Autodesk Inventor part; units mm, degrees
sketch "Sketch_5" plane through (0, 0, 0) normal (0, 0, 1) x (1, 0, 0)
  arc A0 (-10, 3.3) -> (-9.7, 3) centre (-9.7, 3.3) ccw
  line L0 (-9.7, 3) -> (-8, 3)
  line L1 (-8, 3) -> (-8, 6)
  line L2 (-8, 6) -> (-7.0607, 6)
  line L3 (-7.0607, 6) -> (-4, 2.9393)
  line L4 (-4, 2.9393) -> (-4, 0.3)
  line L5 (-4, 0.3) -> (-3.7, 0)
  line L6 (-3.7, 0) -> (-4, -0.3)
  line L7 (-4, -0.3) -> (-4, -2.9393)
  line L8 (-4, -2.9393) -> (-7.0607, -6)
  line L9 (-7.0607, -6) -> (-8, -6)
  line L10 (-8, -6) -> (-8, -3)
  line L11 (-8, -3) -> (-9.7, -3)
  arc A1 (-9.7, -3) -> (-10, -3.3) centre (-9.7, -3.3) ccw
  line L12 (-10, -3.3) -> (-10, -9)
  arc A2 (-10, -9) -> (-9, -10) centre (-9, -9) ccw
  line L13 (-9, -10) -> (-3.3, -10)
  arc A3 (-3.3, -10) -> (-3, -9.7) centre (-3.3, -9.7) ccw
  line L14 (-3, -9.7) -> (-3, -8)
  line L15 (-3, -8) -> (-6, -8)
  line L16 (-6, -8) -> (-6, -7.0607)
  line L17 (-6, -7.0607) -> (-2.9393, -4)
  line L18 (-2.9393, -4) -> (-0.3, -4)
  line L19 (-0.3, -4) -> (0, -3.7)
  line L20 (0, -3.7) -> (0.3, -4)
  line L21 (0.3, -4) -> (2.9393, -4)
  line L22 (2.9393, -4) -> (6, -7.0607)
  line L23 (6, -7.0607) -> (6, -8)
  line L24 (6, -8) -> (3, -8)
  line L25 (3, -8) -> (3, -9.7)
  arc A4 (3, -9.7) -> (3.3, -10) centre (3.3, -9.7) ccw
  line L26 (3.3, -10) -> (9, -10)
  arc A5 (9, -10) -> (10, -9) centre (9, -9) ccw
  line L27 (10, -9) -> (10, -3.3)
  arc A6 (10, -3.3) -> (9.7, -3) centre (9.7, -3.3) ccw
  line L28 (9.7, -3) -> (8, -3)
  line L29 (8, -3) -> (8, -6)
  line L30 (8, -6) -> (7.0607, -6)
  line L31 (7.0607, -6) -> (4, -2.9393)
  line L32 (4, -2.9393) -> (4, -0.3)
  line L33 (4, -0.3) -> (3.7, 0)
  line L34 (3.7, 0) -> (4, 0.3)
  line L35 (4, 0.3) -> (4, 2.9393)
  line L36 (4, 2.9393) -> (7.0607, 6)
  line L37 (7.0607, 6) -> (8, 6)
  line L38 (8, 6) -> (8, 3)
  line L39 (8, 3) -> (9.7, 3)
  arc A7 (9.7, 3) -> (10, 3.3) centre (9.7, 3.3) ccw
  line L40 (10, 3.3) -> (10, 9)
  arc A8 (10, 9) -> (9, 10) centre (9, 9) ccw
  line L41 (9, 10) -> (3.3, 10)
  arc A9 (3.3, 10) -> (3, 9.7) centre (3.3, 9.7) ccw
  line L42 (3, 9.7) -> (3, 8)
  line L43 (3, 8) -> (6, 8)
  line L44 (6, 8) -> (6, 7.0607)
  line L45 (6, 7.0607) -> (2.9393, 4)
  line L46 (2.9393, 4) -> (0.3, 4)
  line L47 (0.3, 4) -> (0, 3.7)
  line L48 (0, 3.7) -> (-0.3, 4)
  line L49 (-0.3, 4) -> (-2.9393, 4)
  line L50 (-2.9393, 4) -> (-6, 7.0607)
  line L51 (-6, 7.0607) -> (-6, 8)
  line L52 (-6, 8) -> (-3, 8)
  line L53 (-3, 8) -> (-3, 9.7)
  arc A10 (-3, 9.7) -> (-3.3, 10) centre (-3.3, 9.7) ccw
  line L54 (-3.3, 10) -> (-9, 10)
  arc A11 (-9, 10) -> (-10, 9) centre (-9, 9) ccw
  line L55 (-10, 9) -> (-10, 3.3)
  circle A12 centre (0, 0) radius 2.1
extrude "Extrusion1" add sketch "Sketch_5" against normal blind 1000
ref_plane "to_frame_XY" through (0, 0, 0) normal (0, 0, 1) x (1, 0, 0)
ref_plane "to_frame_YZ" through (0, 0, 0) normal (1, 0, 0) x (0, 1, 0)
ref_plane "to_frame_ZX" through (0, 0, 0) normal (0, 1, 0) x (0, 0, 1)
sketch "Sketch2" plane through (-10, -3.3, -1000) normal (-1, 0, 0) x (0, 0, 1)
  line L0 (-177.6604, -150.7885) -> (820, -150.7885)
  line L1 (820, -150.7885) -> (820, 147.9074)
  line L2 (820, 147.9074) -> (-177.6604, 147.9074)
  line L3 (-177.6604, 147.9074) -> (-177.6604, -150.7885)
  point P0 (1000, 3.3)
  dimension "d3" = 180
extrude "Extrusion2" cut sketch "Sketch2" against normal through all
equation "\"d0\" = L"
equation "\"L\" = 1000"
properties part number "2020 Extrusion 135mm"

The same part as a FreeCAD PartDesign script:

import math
import FreeCAD as App
import Part
import Sketcher

V = App.Vector

doc = App.newDocument("Part")
body = doc.addObject("PartDesign::Body", "Body")

sketch1 = body.newObject("Sketcher::SketchObject", "Sketch")
sketch1.AttachmentSupport = (doc.getObject("XY_Plane"), [""])
sketch1.MapMode = "FlatFace"
sketch1.addGeometry(Part.LineSegment(V(-10, 9, 0), V(-10, 3.3, 0)), False)
sketch1.addGeometry(Part.ArcOfCircle(Part.Circle(V(-9.7, 3.3, 0), V(0, 0, 1), 0.3), math.radians(180), math.radians(270)), False)
sketch1.addGeometry(Part.LineSegment(V(-9.7, 3, 0), V(-8, 3, 0)), False)
sketch1.addGeometry(Part.LineSegment(V(-8, 3, 0), V(-8, 6, 0)), False)
sketch1.addGeometry(Part.LineSegment(V(-8, 6, 0), V(-7.0607, 6, 0)), False)
sketch1.addGeometry(Part.LineSegment(V(-7.0607, 6, 0), V(-4, 2.9393, 0)), False)
sketch1.addGeometry(Part.LineSegment(V(-4, 2.9393, 0), V(-4, 0.3, 0)), False)
sketch1.addGeometry(Part.LineSegment(V(-4, 0.3, 0), V(-3.7, 0, 0)), False)
sketch1.addGeometry(Part.LineSegment(V(-3.7, 0, 0), V(-4, -0.3, 0)), False)
sketch1.addGeometry(Part.LineSegment(V(-4, -0.3, 0), V(-4, -2.9393, 0)), False)
sketch1.addGeometry(Part.LineSegment(V(-4, -2.9393, 0), V(-7.0607, -6, 0)), False)
sketch1.addGeometry(Part.LineSegment(V(-7.0607, -6, 0), V(-8, -6, 0)), False)
sketch1.addGeometry(Part.LineSegment(V(-8, -6, 0), V(-8, -3, 0)), False)
sketch1.addGeometry(Part.LineSegment(V(-8, -3, 0), V(-9.7, -3, 0)), False)
sketch1.addGeometry(Part.ArcOfCircle(Part.Circle(V(-9.7, -3.3, 0), V(0, 0, 1), 0.3), math.radians(90), math.radians(180)), False)
sketch1.addGeometry(Part.LineSegment(V(-10, -3.3, 0), V(-10, -9, 0)), False)
sketch1.addGeometry(Part.ArcOfCircle(Part.Circle(V(-9, -9, 0), V(0, 0, 1), 1), math.radians(180), math.radians(270)), False)
sketch1.addGeometry(Part.LineSegment(V(-9, -10, 0), V(-3.3, -10, 0)), False)
sketch1.addGeometry(Part.ArcOfCircle(Part.Circle(V(-3.3, -9.7, 0), V(0, 0, 1), 0.3), math.radians(-90), math.radians(0)), False)
sketch1.addGeometry(Part.LineSegment(V(-3, -9.7, 0), V(-3, -8, 0)), False)
sketch1.addGeometry(Part.LineSegment(V(-3, -8, 0), V(-6, -8, 0)), False)
sketch1.addGeometry(Part.LineSegment(V(-6, -8, 0), V(-6, -7.0607, 0)), False)
sketch1.addGeometry(Part.LineSegment(V(-6, -7.0607, 0), V(-2.9393, -4, 0)), False)
sketch1.addGeometry(Part.LineSegment(V(-2.9393, -4, 0), V(-0.3, -4, 0)), False)
sketch1.addGeometry(Part.LineSegment(V(-0.3, -4, 0), V(0, -3.7, 0)), False)
sketch1.addGeometry(Part.LineSegment(V(0, -3.7, 0), V(0.3, -4, 0)), False)
sketch1.addGeometry(Part.LineSegment(V(0.3, -4, 0), V(2.9393, -4, 0)), False)
sketch1.addGeometry(Part.LineSegment(V(2.9393, -4, 0), V(6, -7.0607, 0)), False)
sketch1.addGeometry(Part.LineSegment(V(6, -7.0607, 0), V(6, -8, 0)), False)
sketch1.addGeometry(Part.LineSegment(V(6, -8, 0), V(3, -8, 0)), False)
sketch1.addGeometry(Part.LineSegment(V(3, -8, 0), V(3, -9.7, 0)), False)
sketch1.addGeometry(Part.ArcOfCircle(Part.Circle(V(3.3, -9.7, 0), V(0, 0, 1), 0.3), math.radians(180), math.radians(270)), False)
sketch1.addGeometry(Part.LineSegment(V(3.3, -10, 0), V(9, -10, 0)), False)
sketch1.addGeometry(Part.ArcOfCircle(Part.Circle(V(9, -9, 0), V(0, 0, 1), 1), math.radians(-90), math.radians(0)), False)
sketch1.addGeometry(Part.LineSegment(V(10, -9, 0), V(10, -3.3, 0)), False)
sketch1.addGeometry(Part.ArcOfCircle(Part.Circle(V(9.7, -3.3, 0), V(0, 0, 1), 0.3), math.radians(0), math.radians(90)), False)
sketch1.addGeometry(Part.LineSegment(V(9.7, -3, 0), V(8, -3, 0)), False)
sketch1.addGeometry(Part.LineSegment(V(8, -3, 0), V(8, -6, 0)), False)
sketch1.addGeometry(Part.LineSegment(V(8, -6, 0), V(7.0607, -6, 0)), False)
sketch1.addGeometry(Part.LineSegment(V(7.0607, -6, 0), V(4, -2.9393, 0)), False)
sketch1.addGeometry(Part.LineSegment(V(4, -2.9393, 0), V(4, -0.3, 0)), False)
sketch1.addGeometry(Part.LineSegment(V(4, -0.3, 0), V(3.7, 0, 0)), False)
sketch1.addGeometry(Part.LineSegment(V(3.7, 0, 0), V(4, 0.3, 0)), False)
sketch1.addGeometry(Part.LineSegment(V(4, 0.3, 0), V(4, 2.9393, 0)), False)
sketch1.addGeometry(Part.LineSegment(V(4, 2.9393, 0), V(7.0607, 6, 0)), False)
sketch1.addGeometry(Part.LineSegment(V(7.0607, 6, 0), V(8, 6, 0)), False)
sketch1.addGeometry(Part.LineSegment(V(8, 6, 0), V(8, 3, 0)), False)
sketch1.addGeometry(Part.LineSegment(V(8, 3, 0), V(9.7, 3, 0)), False)
sketch1.addGeometry(Part.ArcOfCircle(Part.Circle(V(9.7, 3.3, 0), V(0, 0, 1), 0.3), math.radians(-90), math.radians(0)), False)
sketch1.addGeometry(Part.LineSegment(V(10, 3.3, 0), V(10, 9, 0)), False)
sketch1.addGeometry(Part.ArcOfCircle(Part.Circle(V(9, 9, 0), V(0, 0, 1), 1), math.radians(0), math.radians(90)), False)
sketch1.addGeometry(Part.LineSegment(V(9, 10, 0), V(3.3, 10, 0)), False)
sketch1.addGeometry(Part.ArcOfCircle(Part.Circle(V(3.3, 9.7, 0), V(0, 0, 1), 0.3), math.radians(90), math.radians(180)), False)
sketch1.addGeometry(Part.LineSegment(V(3, 9.7, 0), V(3, 8, 0)), False)
sketch1.addGeometry(Part.LineSegment(V(3, 8, 0), V(6, 8, 0)), False)
sketch1.addGeometry(Part.LineSegment(V(6, 8, 0), V(6, 7.0607, 0)), False)
sketch1.addGeometry(Part.LineSegment(V(6, 7.0607, 0), V(2.9393, 4, 0)), False)
sketch1.addGeometry(Part.LineSegment(V(2.9393, 4, 0), V(0.3, 4, 0)), False)
sketch1.addGeometry(Part.LineSegment(V(0.3, 4, 0), V(0, 3.7, 0)), False)
sketch1.addGeometry(Part.LineSegment(V(0, 3.7, 0), V(-0.3, 4, 0)), False)
sketch1.addGeometry(Part.LineSegment(V(-0.3, 4, 0), V(-2.9393, 4, 0)), False)
sketch1.addGeometry(Part.LineSegment(V(-2.9393, 4, 0), V(-6, 7.0607, 0)), False)
sketch1.addGeometry(Part.LineSegment(V(-6, 7.0607, 0), V(-6, 8, 0)), False)
sketch1.addGeometry(Part.LineSegment(V(-6, 8, 0), V(-3, 8, 0)), False)
sketch1.addGeometry(Part.LineSegment(V(-3, 8, 0), V(-3, 9.7, 0)), False)
sketch1.addGeometry(Part.ArcOfCircle(Part.Circle(V(-3.3, 9.7, 0), V(0, 0, 1), 0.3), math.radians(0), math.radians(90)), False)
sketch1.addGeometry(Part.LineSegment(V(-3.3, 10, 0), V(-9, 10, 0)), False)
sketch1.addGeometry(Part.ArcOfCircle(Part.Circle(V(-9, 9, 0), V(0, 0, 1), 1), math.radians(90), math.radians(180)), False)
sketch1.addGeometry(Part.Circle(V(0, 0, 0), V(0, 0, 1), 2.1), False)
sketch1.addConstraint(Sketcher.Constraint("Tangent", 0, 2, 1, 1))
sketch1.addConstraint(Sketcher.Constraint("Tangent", 1, 2, 2, 1))
sketch1.addConstraint(Sketcher.Constraint("Coincident", 2, 2, 3, 1))
sketch1.addConstraint(Sketcher.Constraint("Coincident", 3, 2, 4, 1))
sketch1.addConstraint(Sketcher.Constraint("Coincident", 4, 2, 5, 1))
sketch1.addConstraint(Sketcher.Constraint("Coincident", 5, 2, 6, 1))
sketch1.addConstraint(Sketcher.Constraint("Coincident", 6, 2, 7, 1))
sketch1.addConstraint(Sketcher.Constraint("Coincident", 7, 2, 8, 1))
sketch1.addConstraint(Sketcher.Constraint("Coincident", 8, 2, 9, 1))
sketch1.addConstraint(Sketcher.Constraint("Coincident", 9, 2, 10, 1))
sketch1.addConstraint(Sketcher.Constraint("Coincident", 10, 2, 11, 1))
sketch1.addConstraint(Sketcher.Constraint("Coincident", 11, 2, 12, 1))
sketch1.addConstraint(Sketcher.Constraint("Coincident", 12, 2, 13, 1))
sketch1.addConstraint(Sketcher.Constraint("Tangent", 13, 2, 14, 1))
sketch1.addConstraint(Sketcher.Constraint("Tangent", 14, 2, 15, 1))
sketch1.addConstraint(Sketcher.Constraint("Tangent", 15, 2, 16, 1))
sketch1.addConstraint(Sketcher.Constraint("Tangent", 16, 2, 17, 1))
sketch1.addConstraint(Sketcher.Constraint("Tangent", 17, 2, 18, 1))
sketch1.addConstraint(Sketcher.Constraint("Tangent", 18, 2, 19, 1))
sketch1.addConstraint(Sketcher.Constraint("Coincident", 19, 2, 20, 1))
sketch1.addConstraint(Sketcher.Constraint("Coincident", 20, 2, 21, 1))
sketch1.addConstraint(Sketcher.Constraint("Coincident", 21, 2, 22, 1))
sketch1.addConstraint(Sketcher.Constraint("Coincident", 22, 2, 23, 1))
sketch1.addConstraint(Sketcher.Constraint("Coincident", 23, 2, 24, 1))
sketch1.addConstraint(Sketcher.Constraint("Coincident", 24, 2, 25, 1))
sketch1.addConstraint(Sketcher.Constraint("Coincident", 25, 2, 26, 1))
sketch1.addConstraint(Sketcher.Constraint("Coincident", 26, 2, 27, 1))
sketch1.addConstraint(Sketcher.Constraint("Coincident", 27, 2, 28, 1))
sketch1.addConstraint(Sketcher.Constraint("Coincident", 28, 2, 29, 1))
sketch1.addConstraint(Sketcher.Constraint("Coincident", 29, 2, 30, 1))
sketch1.addConstraint(Sketcher.Constraint("Tangent", 30, 2, 31, 1))
sketch1.addConstraint(Sketcher.Constraint("Tangent", 31, 2, 32, 1))
sketch1.addConstraint(Sketcher.Constraint("Tangent", 32, 2, 33, 1))
sketch1.addConstraint(Sketcher.Constraint("Tangent", 33, 2, 34, 1))
sketch1.addConstraint(Sketcher.Constraint("Tangent", 34, 2, 35, 1))
sketch1.addConstraint(Sketcher.Constraint("Tangent", 35, 2, 36, 1))
sketch1.addConstraint(Sketcher.Constraint("Coincident", 36, 2, 37, 1))
sketch1.addConstraint(Sketcher.Constraint("Coincident", 37, 2, 38, 1))
sketch1.addConstraint(Sketcher.Constraint("Coincident", 38, 2, 39, 1))
sketch1.addConstraint(Sketcher.Constraint("Coincident", 39, 2, 40, 1))
sketch1.addConstraint(Sketcher.Constraint("Coincident", 40, 2, 41, 1))
sketch1.addConstraint(Sketcher.Constraint("Coincident", 41, 2, 42, 1))
sketch1.addConstraint(Sketcher.Constraint("Coincident", 42, 2, 43, 1))
sketch1.addConstraint(Sketcher.Constraint("Coincident", 43, 2, 44, 1))
sketch1.addConstraint(Sketcher.Constraint("Coincident", 44, 2, 45, 1))
sketch1.addConstraint(Sketcher.Constraint("Coincident", 45, 2, 46, 1))
sketch1.addConstraint(Sketcher.Constraint("Coincident", 46, 2, 47, 1))
sketch1.addConstraint(Sketcher.Constraint("Tangent", 47, 2, 48, 1))
sketch1.addConstraint(Sketcher.Constraint("Tangent", 48, 2, 49, 1))
sketch1.addConstraint(Sketcher.Constraint("Tangent", 49, 2, 50, 1))
sketch1.addConstraint(Sketcher.Constraint("Tangent", 50, 2, 51, 1))
sketch1.addConstraint(Sketcher.Constraint("Tangent", 51, 2, 52, 1))
sketch1.addConstraint(Sketcher.Constraint("Tangent", 52, 2, 53, 1))
sketch1.addConstraint(Sketcher.Constraint("Coincident", 53, 2, 54, 1))
sketch1.addConstraint(Sketcher.Constraint("Coincident", 54, 2, 55, 1))
sketch1.addConstraint(Sketcher.Constraint("Coincident", 55, 2, 56, 1))
sketch1.addConstraint(Sketcher.Constraint("Coincident", 56, 2, 57, 1))
sketch1.addConstraint(Sketcher.Constraint("Coincident", 57, 2, 58, 1))
sketch1.addConstraint(Sketcher.Constraint("Coincident", 58, 2, 59, 1))
sketch1.addConstraint(Sketcher.Constraint("Coincident", 59, 2, 60, 1))
sketch1.addConstraint(Sketcher.Constraint("Coincident", 60, 2, 61, 1))
sketch1.addConstraint(Sketcher.Constraint("Coincident", 61, 2, 62, 1))
sketch1.addConstraint(Sketcher.Constraint("Coincident", 62, 2, 63, 1))
sketch1.addConstraint(Sketcher.Constraint("Coincident", 63, 2, 64, 1))
sketch1.addConstraint(Sketcher.Constraint("Tangent", 64, 2, 65, 1))
sketch1.addConstraint(Sketcher.Constraint("Tangent", 65, 2, 66, 1))
sketch1.addConstraint(Sketcher.Constraint("Tangent", 66, 2, 67, 1))
sketch1.addConstraint(Sketcher.Constraint("Tangent", 67, 2, 0, 1))
sketch1.addConstraint(Sketcher.Constraint("Vertical", 0))
sketch1.addConstraint(Sketcher.Constraint("Horizontal", 2))
sketch1.addConstraint(Sketcher.Constraint("Vertical", 3))
sketch1.addConstraint(Sketcher.Constraint("Horizontal", 4))
sketch1.addConstraint(Sketcher.Constraint("Vertical", 6))
sketch1.addConstraint(Sketcher.Constraint("Vertical", 9))
sketch1.addConstraint(Sketcher.Constraint("Horizontal", 11))
sketch1.addConstraint(Sketcher.Constraint("Vertical", 12))
sketch1.addConstraint(Sketcher.Constraint("Horizontal", 13))
sketch1.addConstraint(Sketcher.Constraint("Vertical", 15))
sketch1.addConstraint(Sketcher.Constraint("Horizontal", 17))
sketch1.addConstraint(Sketcher.Constraint("Vertical", 19))
sketch1.addConstraint(Sketcher.Constraint("Horizontal", 20))
sketch1.addConstraint(Sketcher.Constraint("Vertical", 21))
sketch1.addConstraint(Sketcher.Constraint("Horizontal", 23))
sketch1.addConstraint(Sketcher.Constraint("Horizontal", 26))
sketch1.addConstraint(Sketcher.Constraint("Vertical", 28))
sketch1.addConstraint(Sketcher.Constraint("Horizontal", 29))
sketch1.addConstraint(Sketcher.Constraint("Vertical", 30))
sketch1.addConstraint(Sketcher.Constraint("Horizontal", 32))
sketch1.addConstraint(Sketcher.Constraint("Vertical", 34))
sketch1.addConstraint(Sketcher.Constraint("Horizontal", 36))
sketch1.addConstraint(Sketcher.Constraint("Vertical", 37))
sketch1.addConstraint(Sketcher.Constraint("Horizontal", 38))
sketch1.addConstraint(Sketcher.Constraint("Vertical", 40))
sketch1.addConstraint(Sketcher.Constraint("Vertical", 43))
sketch1.addConstraint(Sketcher.Constraint("Horizontal", 45))
sketch1.addConstraint(Sketcher.Constraint("Vertical", 46))
sketch1.addConstraint(Sketcher.Constraint("Horizontal", 47))
sketch1.addConstraint(Sketcher.Constraint("Vertical", 49))
sketch1.addConstraint(Sketcher.Constraint("Horizontal", 51))
sketch1.addConstraint(Sketcher.Constraint("Vertical", 53))
sketch1.addConstraint(Sketcher.Constraint("Horizontal", 54))
sketch1.addConstraint(Sketcher.Constraint("Vertical", 55))
sketch1.addConstraint(Sketcher.Constraint("Horizontal", 57))
sketch1.addConstraint(Sketcher.Constraint("Horizontal", 60))
sketch1.addConstraint(Sketcher.Constraint("Vertical", 62))
sketch1.addConstraint(Sketcher.Constraint("Horizontal", 63))
sketch1.addConstraint(Sketcher.Constraint("Vertical", 64))
sketch1.addConstraint(Sketcher.Constraint("Horizontal", 66))
sketch1.addConstraint(Sketcher.Constraint("Coincident", 68, 3, -1, 1))
sketch1.addConstraint(Sketcher.Constraint("Equal", 1, 14))
sketch1.addConstraint(Sketcher.Constraint("Equal", 14, 18))
sketch1.addConstraint(Sketcher.Constraint("Equal", 18, 31))
sketch1.addConstraint(Sketcher.Constraint("Equal", 16, 33))
sketch1.addConstraint(Sketcher.Constraint("Equal", 31, 35))
sketch1.addConstraint(Sketcher.Constraint("Equal", 35, 48))
sketch1.addConstraint(Sketcher.Constraint("Equal", 33, 50))
sketch1.addConstraint(Sketcher.Constraint("Equal", 48, 52))
sketch1.addConstraint(Sketcher.Constraint("Equal", 52, 65))
sketch1.addConstraint(Sketcher.Constraint("Equal", 50, 67))
sketch1.addConstraint(Sketcher.Constraint("Symmetric", 1, 3, 35, 3, -1, 1))
sketch1.addConstraint(Sketcher.Constraint("Symmetric", 14, 3, 48, 3, -1, 1))
sketch1.addConstraint(Sketcher.Constraint("Symmetric", 18, 3, 52, 3, -1, 1))
sketch1.addConstraint(Sketcher.Constraint("Symmetric", 31, 3, 65, 3, -1, 1))
sketch1.addConstraint(Sketcher.Constraint("Symmetric", 3, 2, 37, 2, -1, 1))
sketch1.addConstraint(Sketcher.Constraint("Symmetric", 5, 2, 39, 2, -1, 1))
sketch1.addConstraint(Sketcher.Constraint("Symmetric", 7, 2, 41, 2, -1, 1))
sketch1.addConstraint(Sketcher.Constraint("Symmetric", 8, 2, 42, 2, -1, 1))
sketch1.addConstraint(Sketcher.Constraint("Symmetric", 10, 2, 44, 2, -1, 1))
sketch1.addConstraint(Sketcher.Constraint("Symmetric", 20, 2, 54, 2, -1, 1))
sketch1.addConstraint(Sketcher.Constraint("Symmetric", 22, 2, 56, 2, -1, 1))
sketch1.addConstraint(Sketcher.Constraint("Symmetric", 24, 2, 58, 2, -1, 1))
sketch1.addConstraint(Sketcher.Constraint("Symmetric", 25, 2, 59, 2, -1, 1))
sketch1.addConstraint(Sketcher.Constraint("Symmetric", 27, 2, 61, 2, -1, 1))
sketch1.addConstraint(Sketcher.Constraint("Symmetric", 18, 3, 31, 3, -2))
sketch1.addConstraint(Sketcher.Constraint("Symmetric", 14, 3, 35, 3, -2))
sketch1.addConstraint(Sketcher.Constraint("Symmetric", 23, 2, 25, 2, -2))
sketch1.addConstraint(Sketcher.Constraint("Symmetric", 21, 2, 27, 2, -2))
sketch1.addConstraint(Sketcher.Constraint("Symmetric", 11, 2, 37, 2, -2))
sketch1.addConstraint(Sketcher.Constraint("Symmetric", 9, 2, 39, 2, -2))
sketch1.addConstraint(Sketcher.Constraint("PointOnObject", 7, 2, -1))
sketch1.addConstraint(Sketcher.Constraint("PointOnObject", 24, 2, -2))
sketch1.addConstraint(Sketcher.Constraint("Parallel", 5, 7))
sketch1.addConstraint(Sketcher.Constraint("Perpendicular", 7, 8))
sketch1.addConstraint(Sketcher.Constraint("Parallel", 8, 10))
sketch1.addConstraint(Sketcher.Constraint("Parallel", 10, 22))
sketch1.addConstraint(Sketcher.Constraint("Parallel", 22, 24))
sketch1.addConstraint(Sketcher.Constraint("Perpendicular", 24, 25))
sketch1.addConstraint(Sketcher.Constraint("Parallel", 25, 27))
sketch1.addConstraint(Sketcher.Constraint("Parallel", 27, 39))
sketch1.addConstraint(Sketcher.Constraint("Parallel", 39, 41))
sketch1.addConstraint(Sketcher.Constraint("Parallel", 42, 44))
sketch1.addConstraint(Sketcher.Constraint("Parallel", 44, 56))
sketch1.addConstraint(Sketcher.Constraint("Parallel", 56, 58))
sketch1.addConstraint(Sketcher.Constraint("Parallel", 59, 61))
sketch1.addConstraint(Sketcher.Constraint("Horizontal", 20, 2, 28, 2))
sketch1.addConstraint(Sketcher.Constraint("Horizontal", 54, 2, 62, 2))
sketch1.addConstraint(Sketcher.Constraint("Vertical", 37, 2, 45, 2))
sketch1.addConstraint(Sketcher.Constraint("Equal", 66, 0))
sketch1.addConstraint(Sketcher.Constraint("Equal", 63, 3))
sketch1.addConstraint(Sketcher.Constraint("Equal", 60, 6))
sketch1.addConstraint(Sketcher.Constraint("Equal", 47, 19))
sketch1.addConstraint(Sketcher.Constraint("Equal", 45, 21))
sketch1.addConstraint(Sketcher.Constraint("Equal", 10, 22))
sketch1.addConstraint(Sketcher.Constraint("Equal", 8, 24))
sketch1.addConstraint(Sketcher.Constraint("Radius", 16, 1.0))
sketch1.addConstraint(Sketcher.Constraint("Diameter", 68, 4.2))
sketch1.addConstraint(Sketcher.Constraint("Radius", 1, 0.3))
sketch1.addConstraint(Sketcher.Constraint("DistanceX", 20, 2, 20, 1, 3.0))
sketch1.addConstraint(Sketcher.Constraint("DistanceX", 2, 1, 2, 2, 1.7))
sketch1.addConstraint(Sketcher.Constraint("DistanceX", 17, 1, 17, 2, 5.7))
sketch1.addConstraint(Sketcher.Constraint("DistanceX", 16, 3, -1, 1, 9.0))
sketch1.addConstraint(Sketcher.Constraint("DistanceX", 5, 2, -1, 1, 4.0))
sketch1.addConstraint(Sketcher.Constraint("DistanceY", -1, 1, 6, 2, 0.3))
sketch1.addConstraint(Sketcher.Constraint("DistanceX", 4, 1, 4, 2, 0.9393))
pad1 = body.newObject("PartDesign::Pad", "Pad")
pad1.Profile = sketch1
pad1.Length = 1000
pad1.Reversed = True

sketch2 = body.newObject("Sketcher::SketchObject", "Sketch001")
sketch2.AttachmentSupport = (doc.getObject("YZ_Plane"), [""])
sketch2.MapMode = "FlatFace"
sketch2.AttachmentOffset = App.Placement(V(0, 0, -10), App.Rotation())
sketch2.addGeometry(Part.LineSegment(V(144.6074, -1177.6604, 0), V(-154.0885, -1177.6604, 0)), False)
sketch2.addGeometry(Part.LineSegment(V(-154.0885, -1177.6604, 0), V(-154.0885, -180, 0)), False)
sketch2.addGeometry(Part.LineSegment(V(-154.0885, -180, 0), V(144.6074, -180, 0)), False)
sketch2.addGeometry(Part.LineSegment(V(144.6074, -180, 0), V(144.6074, -1177.6604, 0)), False)
sketch2.addConstraint(Sketcher.Constraint("Coincident", 0, 2, 1, 1))
sketch2.addConstraint(Sketcher.Constraint("Coincident", 1, 2, 2, 1))
sketch2.addConstraint(Sketcher.Constraint("Coincident", 2, 2, 3, 1))
sketch2.addConstraint(Sketcher.Constraint("Coincident", 3, 2, 0, 1))
sketch2.addConstraint(Sketcher.Constraint("Horizontal", 0))
sketch2.addConstraint(Sketcher.Constraint("Vertical", 1))
sketch2.addConstraint(Sketcher.Constraint("Horizontal", 2))
sketch2.addConstraint(Sketcher.Constraint("Vertical", 3))
sketch2.addConstraint(Sketcher.Constraint("DistanceY", 1, 2, -1, 1, 180.0))
sketch2.addConstraint(Sketcher.Constraint("DistanceX", 0, 2, 0, 1, 298.696))
sketch2.addConstraint(Sketcher.Constraint("DistanceY", 1, 1, 1, 2, 997.6604))
sketch2.addConstraint(Sketcher.Constraint("DistanceX", 0, 2, -1, 1, 154.0885))
pocket1 = body.newObject("PartDesign::Pocket", "Pocket")
pocket1.Profile = sketch2
pocket1.Type = "ThroughAll"
pocket1.Reversed = True

doc.recompute()
